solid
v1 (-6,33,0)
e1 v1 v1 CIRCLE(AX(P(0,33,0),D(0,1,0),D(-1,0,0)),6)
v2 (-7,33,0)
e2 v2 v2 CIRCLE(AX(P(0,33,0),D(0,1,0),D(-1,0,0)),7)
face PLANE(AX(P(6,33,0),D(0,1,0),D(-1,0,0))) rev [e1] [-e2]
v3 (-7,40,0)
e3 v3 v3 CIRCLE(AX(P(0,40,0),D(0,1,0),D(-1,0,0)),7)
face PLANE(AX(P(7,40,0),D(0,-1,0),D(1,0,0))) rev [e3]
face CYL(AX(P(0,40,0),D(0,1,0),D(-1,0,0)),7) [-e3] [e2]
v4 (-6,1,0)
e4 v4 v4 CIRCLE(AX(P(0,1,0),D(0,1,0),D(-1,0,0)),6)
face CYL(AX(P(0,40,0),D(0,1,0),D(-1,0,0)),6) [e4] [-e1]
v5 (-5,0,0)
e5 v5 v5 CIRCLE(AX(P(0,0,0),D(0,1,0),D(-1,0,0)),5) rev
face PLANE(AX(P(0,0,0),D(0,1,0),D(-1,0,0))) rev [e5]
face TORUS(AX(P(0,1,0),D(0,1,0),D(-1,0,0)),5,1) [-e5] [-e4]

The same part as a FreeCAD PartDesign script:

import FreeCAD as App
import Part
import Sketcher

V = App.Vector


def edges_at(feature, points):
    """Names of the edges that pass closest to the given points."""
    edges = feature.Shape.Edges
    near = lambda p: min(range(len(edges)), key=lambda i: edges[i].distToShape(Part.Vertex(*p))[0])
    return sorted({f"Edge{near(p) + 1}" for p in points})

doc = App.newDocument("Part")
body = doc.addObject("PartDesign::Body", "Body")

# Sketch on XY plane
sketch1 = body.newObject("Sketcher::SketchObject", "Sketch")
sketch1.AttachmentSupport = (doc.getObject("XY_Plane"), [""])
sketch1.MapMode = "FlatFace"
sketch1.addGeometry(Part.LineSegment(V(0, 0, 0), V(6, 0, 0)), False)
sketch1.addGeometry(Part.LineSegment(V(6, 0, 0), V(6, 33, 0)), False)
sketch1.addGeometry(Part.LineSegment(V(6, 33, 0), V(7, 33, 0)), False)
sketch1.addGeometry(Part.LineSegment(V(7, 33, 0), V(7, 40, 0)), False)
sketch1.addGeometry(Part.LineSegment(V(7, 40, 0), V(0, 40, 0)), False)
sketch1.addGeometry(Part.LineSegment(V(0, 40, 0), V(0, 0, 0)), False)
sketch1.addConstraint(Sketcher.Constraint("Coincident", 0, 2, 1, 1))
sketch1.addConstraint(Sketcher.Constraint("Coincident", 1, 2, 2, 1))
sketch1.addConstraint(Sketcher.Constraint("Coincident", 2, 2, 3, 1))
sketch1.addConstraint(Sketcher.Constraint("Coincident", 3, 2, 4, 1))
sketch1.addConstraint(Sketcher.Constraint("Coincident", 4, 2, 5, 1))
sketch1.addConstraint(Sketcher.Constraint("Coincident", 5, 2, 0, 1))
sketch1.addConstraint(Sketcher.Constraint("Horizontal", 0))
sketch1.addConstraint(Sketcher.Constraint("Vertical", 1))
sketch1.addConstraint(Sketcher.Constraint("Horizontal", 2))
sketch1.addConstraint(Sketcher.Constraint("Vertical", 3))
sketch1.addConstraint(Sketcher.Constraint("Horizontal", 4))
sketch1.addConstraint(Sketcher.Constraint("Vertical", 5))
sketch1.addConstraint(Sketcher.Constraint("Coincident", 5, 2, -1, 1))
sketch1.addConstraint(Sketcher.Constraint("Equal", 4, 3))
sketch1.addConstraint(Sketcher.Constraint("DistanceX", 0, 1, 0, 2, 6.0))
sketch1.addConstraint(Sketcher.Constraint("DistanceX", 2, 1, 2, 2, 1.0))
sketch1.addConstraint(Sketcher.Constraint("DistanceY", 1, 1, 1, 2, 33.0))
revolution = body.newObject("PartDesign::Revolution", "Revolution")
revolution.Profile = sketch1
revolution.ReferenceAxis = (sketch1, ["V_Axis"])
revolution.Angle = 360
doc.recompute()

fillet = body.newObject("PartDesign::Fillet", "Fillet")
fillet.Base = (revolution, edges_at(revolution, [(6, 0, 0)]))
fillet.Radius = 1

doc.recompute()
